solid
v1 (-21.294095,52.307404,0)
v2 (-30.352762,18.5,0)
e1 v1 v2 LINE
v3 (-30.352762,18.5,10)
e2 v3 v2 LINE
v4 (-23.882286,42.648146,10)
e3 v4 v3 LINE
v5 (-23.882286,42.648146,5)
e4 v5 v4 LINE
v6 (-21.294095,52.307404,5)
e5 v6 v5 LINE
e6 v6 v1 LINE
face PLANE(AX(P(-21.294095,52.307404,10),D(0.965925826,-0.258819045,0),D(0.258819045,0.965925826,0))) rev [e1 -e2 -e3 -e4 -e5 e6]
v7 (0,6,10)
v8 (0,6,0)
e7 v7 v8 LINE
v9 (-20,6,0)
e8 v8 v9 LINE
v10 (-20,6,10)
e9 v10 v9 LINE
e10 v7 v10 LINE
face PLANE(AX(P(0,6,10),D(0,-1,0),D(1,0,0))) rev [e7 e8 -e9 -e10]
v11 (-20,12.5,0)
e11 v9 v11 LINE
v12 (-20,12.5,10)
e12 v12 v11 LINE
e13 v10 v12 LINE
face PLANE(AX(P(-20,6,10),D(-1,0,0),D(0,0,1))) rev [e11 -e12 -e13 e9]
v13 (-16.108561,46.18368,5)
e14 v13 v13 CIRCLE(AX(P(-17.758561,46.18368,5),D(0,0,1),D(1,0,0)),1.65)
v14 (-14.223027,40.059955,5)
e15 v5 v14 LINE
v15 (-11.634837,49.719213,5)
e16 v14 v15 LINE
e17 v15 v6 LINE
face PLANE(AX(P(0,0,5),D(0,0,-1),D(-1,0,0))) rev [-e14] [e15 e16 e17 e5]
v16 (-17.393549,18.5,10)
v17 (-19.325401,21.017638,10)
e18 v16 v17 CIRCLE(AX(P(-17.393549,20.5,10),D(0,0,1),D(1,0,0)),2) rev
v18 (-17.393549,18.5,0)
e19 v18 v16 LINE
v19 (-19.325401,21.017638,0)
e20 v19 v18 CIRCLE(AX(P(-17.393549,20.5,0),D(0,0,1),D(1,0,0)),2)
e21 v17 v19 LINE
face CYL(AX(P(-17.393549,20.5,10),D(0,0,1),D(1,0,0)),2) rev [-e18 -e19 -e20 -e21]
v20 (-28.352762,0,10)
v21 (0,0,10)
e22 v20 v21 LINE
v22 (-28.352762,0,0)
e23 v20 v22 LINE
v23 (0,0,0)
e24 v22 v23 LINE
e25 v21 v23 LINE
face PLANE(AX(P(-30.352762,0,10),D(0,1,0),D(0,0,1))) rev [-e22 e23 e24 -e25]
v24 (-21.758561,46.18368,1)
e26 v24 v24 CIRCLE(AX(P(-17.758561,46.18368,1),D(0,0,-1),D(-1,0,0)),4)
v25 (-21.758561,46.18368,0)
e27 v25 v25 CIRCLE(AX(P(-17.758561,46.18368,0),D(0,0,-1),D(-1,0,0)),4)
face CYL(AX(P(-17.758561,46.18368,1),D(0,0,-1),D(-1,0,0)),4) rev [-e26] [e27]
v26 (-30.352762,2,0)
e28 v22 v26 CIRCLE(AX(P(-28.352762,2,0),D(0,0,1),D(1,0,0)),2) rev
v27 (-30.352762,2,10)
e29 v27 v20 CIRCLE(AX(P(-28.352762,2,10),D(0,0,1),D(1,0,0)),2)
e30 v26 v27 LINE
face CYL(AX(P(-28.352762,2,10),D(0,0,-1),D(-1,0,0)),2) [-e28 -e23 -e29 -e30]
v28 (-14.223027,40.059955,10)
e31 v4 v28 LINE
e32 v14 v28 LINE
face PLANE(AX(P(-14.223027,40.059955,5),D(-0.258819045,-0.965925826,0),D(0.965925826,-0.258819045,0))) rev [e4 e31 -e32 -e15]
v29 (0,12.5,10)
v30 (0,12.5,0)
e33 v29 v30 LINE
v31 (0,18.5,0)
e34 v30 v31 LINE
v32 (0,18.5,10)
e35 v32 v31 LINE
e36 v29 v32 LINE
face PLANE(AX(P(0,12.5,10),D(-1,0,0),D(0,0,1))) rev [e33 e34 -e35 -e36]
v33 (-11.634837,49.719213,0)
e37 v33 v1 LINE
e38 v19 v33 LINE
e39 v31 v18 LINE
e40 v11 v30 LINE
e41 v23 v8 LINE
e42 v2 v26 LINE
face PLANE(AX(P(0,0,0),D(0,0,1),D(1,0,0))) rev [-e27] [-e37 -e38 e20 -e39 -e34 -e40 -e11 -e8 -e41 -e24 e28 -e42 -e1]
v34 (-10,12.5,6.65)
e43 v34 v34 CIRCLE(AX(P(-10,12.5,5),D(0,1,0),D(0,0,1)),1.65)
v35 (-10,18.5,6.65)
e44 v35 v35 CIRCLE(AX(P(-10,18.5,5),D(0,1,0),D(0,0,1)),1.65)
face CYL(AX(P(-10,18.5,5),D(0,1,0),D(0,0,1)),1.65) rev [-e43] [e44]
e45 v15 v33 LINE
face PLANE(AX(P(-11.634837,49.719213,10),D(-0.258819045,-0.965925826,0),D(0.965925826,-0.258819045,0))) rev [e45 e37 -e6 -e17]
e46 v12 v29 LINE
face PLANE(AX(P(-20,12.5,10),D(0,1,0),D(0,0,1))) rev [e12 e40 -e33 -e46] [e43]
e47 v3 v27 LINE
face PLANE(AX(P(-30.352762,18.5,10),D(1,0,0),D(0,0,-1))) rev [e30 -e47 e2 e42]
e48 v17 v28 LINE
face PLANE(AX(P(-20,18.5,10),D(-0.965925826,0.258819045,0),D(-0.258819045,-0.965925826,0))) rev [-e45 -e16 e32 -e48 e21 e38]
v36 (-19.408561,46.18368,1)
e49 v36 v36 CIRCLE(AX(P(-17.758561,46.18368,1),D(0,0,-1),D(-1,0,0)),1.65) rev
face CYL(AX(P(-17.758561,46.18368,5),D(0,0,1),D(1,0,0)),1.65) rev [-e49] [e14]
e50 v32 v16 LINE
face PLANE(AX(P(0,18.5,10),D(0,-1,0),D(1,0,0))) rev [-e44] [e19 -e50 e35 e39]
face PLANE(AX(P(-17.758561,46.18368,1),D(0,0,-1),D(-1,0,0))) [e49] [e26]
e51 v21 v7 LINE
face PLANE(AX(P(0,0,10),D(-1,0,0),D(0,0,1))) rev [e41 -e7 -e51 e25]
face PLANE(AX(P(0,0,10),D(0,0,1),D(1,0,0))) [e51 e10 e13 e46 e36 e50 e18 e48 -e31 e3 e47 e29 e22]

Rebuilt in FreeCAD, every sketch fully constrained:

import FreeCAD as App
import Part
import Sketcher

V = App.Vector
Q = App.Units.Quantity


def edges_at(feature, points):
    """Names of the edges that pass closest to the given points."""
    edges = feature.Shape.Edges
    near = lambda p: min(range(len(edges)), key=lambda i: edges[i].distToShape(Part.Vertex(*p))[0])
    return sorted({f"Edge{near(p) + 1}" for p in points})


def add_polygon(sketch, points):
    """Adds a closed chain of lines whose ends are joined by coincident constraints."""
    first, n = sketch.GeometryCount, len(points)
    for a, b in zip(points, points[1:] + points[:1]):
        sketch.addGeometry(Part.LineSegment(App.Vector(*a, 0), App.Vector(*b, 0)), False)
    for i in range(n):
        sketch.addConstraint(Sketcher.Constraint("Coincident", first + i, 2, first + (i + 1) % n, 1))

doc = App.newDocument("Part")
params = doc.addObject("Spreadsheet::Sheet", "Params")
for row, (alias, value) in enumerate([
    ("sketch1_width", "20 mm"),
    ("sketch1_height", "6 mm"),
    ("sketch1_length", "10 mm"),
    ("sketch1_length2", "35 mm"),
    ("sketch1_height2", "6.5 mm"),
    ("pad1_length", "10 mm"),
    ("sketch2_length", "10 mm"),
    ("pocket1_length", "5 mm"),
    ("fillet_radius", "2 mm"),
    ("sketch3_diameter", "3.3 mm"),
    ("hole_diameter", "3.3 mm"),
    ("hole_depth", "6 mm"),
    ("sketch4_diameter", "3.3 mm"),
    ("hole2_diameter", "3.3 mm"),
    ("fillet2_radius", "2 mm"),
    ("sketch5_diameter", "8 mm"),
    ("pocket2_length", "1 mm"),
], start=1):
    params.set(f"A{row}", alias)
    params.set(f"B{row}", "=" + value)
    params.setAlias(f"B{row}", alias)

body = doc.addObject("PartDesign::Body", "Body")

# Sketch on XY plane
sketch1 = body.newObject("Sketcher::SketchObject", "Sketch")
sketch1.AttachmentSupport = (doc.getObject("XY_Plane"), [""])
sketch1.MapMode = "FlatFace"
add_polygon(sketch1, [(0, 0), (0, 6), (-20, 6), (-20, 12), (0, 12), (0, 18), (-20, 18), (-12, 50), (-21, 52), (-30, 18), (-30, 0)])  # lines 0-10
sketch1.addConstraint(Sketcher.Constraint("Vertical", 0))
sketch1.addConstraint(Sketcher.Constraint("Horizontal", 1))
sketch1.addConstraint(Sketcher.Constraint("Vertical", 2))
sketch1.addConstraint(Sketcher.Constraint("Horizontal", 3))
sketch1.addConstraint(Sketcher.Constraint("Vertical", 4))
sketch1.addConstraint(Sketcher.Constraint("Horizontal", 5))
sketch1.addConstraint(Sketcher.Constraint("Vertical", 9))
sketch1.addConstraint(Sketcher.Constraint("Horizontal", 10))
sketch1.addConstraint(Sketcher.Constraint("Coincident", 10, 2, -1, 1))
sketch1.addConstraint(Sketcher.Constraint("PointOnObject", 3, 2, -2))
sketch1.addConstraint(Sketcher.Constraint("Perpendicular", 6, 7))
sketch1.addConstraint(Sketcher.Constraint("Perpendicular", 7, 8))
sketch1.addConstraint(Sketcher.Constraint("Horizontal", 5, 2, 8, 2))
sketch1.addConstraint(Sketcher.Constraint("Vertical", 2, 2, 5, 2))
sketch1.addConstraint(Sketcher.Constraint("Equal", 0, 4))
sketch1.addConstraint(Sketcher.Constraint("DistanceX", 1, 2, 1, 1, 20.0))
sketch1.addConstraint(Sketcher.Constraint("DistanceY", 0, 1, 0, 2, 6.0))
sketch1.addConstraint(Sketcher.Constraint("Angle", 6, Q("75 deg")))
sketch1.addConstraint(Sketcher.Constraint("Distance", 7, 10.0))
sketch1.addConstraint(Sketcher.Constraint("Distance", 8, 35.0))
sketch1.addConstraint(Sketcher.Constraint("DistanceY", 2, 1, 2, 2, 6.5))
sketch1.setExpression("Constraints[26]", "Params.sketch1_width")
sketch1.setExpression("Constraints[27]", "Params.sketch1_height")
sketch1.setExpression("Constraints[29]", "Params.sketch1_length")
sketch1.setExpression("Constraints[30]", "Params.sketch1_length2")
sketch1.setExpression("Constraints[31]", "Params.sketch1_height2")
pad1 = body.newObject("PartDesign::Pad", "Pad")
pad1.Profile = sketch1
pad1.setExpression("Length", "Params.pad1_length")

# Sketch on XY plane
sketch2 = body.newObject("Sketcher::SketchObject", "Sketch001")
sketch2.AttachmentSupport = (doc.getObject("XY_Plane"), [""])
sketch2.MapMode = "FlatFace"
sketch2.AttachmentOffset = App.Placement(V(0, 0, 10), App.Rotation())
add_polygon(sketch2, [(-12, 50), (-21, 52), (-24, 43), (-14, 40)])  # lines 0-3
sketch2.addConstraint(Sketcher.Constraint("Perpendicular", 0, 1))
sketch2.addConstraint(Sketcher.Constraint("Perpendicular", 1, 2))
sketch2.addConstraint(Sketcher.Constraint("Perpendicular", 2, 3))
sketch2.addConstraint(Sketcher.Constraint("Equal", 0, 1))
sketch2.addConstraint(Sketcher.Constraint("Angle", 0, Q("165 deg")))
sketch2.addConstraint(Sketcher.Constraint("Distance", 0, 10.0))
sketch2.addConstraint(Sketcher.Constraint("DistanceX", 0, 2, -1, 1, 21.294095))
sketch2.addConstraint(Sketcher.Constraint("DistanceY", -1, 1, 0, 2, 52.307404))
sketch2.setExpression("Constraints[9]", "Params.sketch2_length")
pocket1 = body.newObject("PartDesign::Pocket", "Pocket")
pocket1.Profile = sketch2
pocket1.setExpression("Length", "Params.pocket1_length")
doc.recompute()

fillet = body.newObject("PartDesign::Fillet", "Fillet")
fillet.Base = (pocket1, edges_at(pocket1, [(-20, 18.5, 5)]))
fillet.setExpression("Radius", "Params.fillet_radius")

# Sketch on XZ plane
sketch3 = body.newObject("Sketcher::SketchObject", "Sketch002")
sketch3.AttachmentSupport = (doc.getObject("XZ_Plane"), [""])
sketch3.MapMode = "FlatFace"
sketch3.AttachmentOffset = App.Placement(V(0, 0, -18.5), App.Rotation())
sketch3.addGeometry(Part.Circle(V(-10, 5, 0), V(0, 0, 1), 1.6), False)
sketch3.addConstraint(Sketcher.Constraint("Diameter", 0, 3.3))
sketch3.addConstraint(Sketcher.Constraint("DistanceX", 0, 3, -1, 1, 10.0))
sketch3.addConstraint(Sketcher.Constraint("DistanceY", -1, 1, 0, 3, 5.0))
sketch3.setExpression("Constraints[0]", "Params.sketch3_diameter")
doc.recompute()
hole = body.newObject("PartDesign::Hole", "Hole")
hole.Profile = sketch3
hole.ThreadType = "None"
hole.setExpression("Diameter", "Params.hole_diameter")
hole.DepthType = "Dimension"
hole.setExpression("Depth", "Params.hole_depth")
hole.DrillPoint = "Flat"
hole.Reversed = True

# Sketch on XY plane
sketch4 = body.newObject("Sketcher::SketchObject", "Sketch003")
sketch4.AttachmentSupport = (doc.getObject("XY_Plane"), [""])
sketch4.MapMode = "FlatFace"
sketch4.AttachmentOffset = App.Placement(V(0, 0, 5), App.Rotation())
sketch4.addGeometry(Part.Circle(V(-17.8, 46.2, 0), V(0, 0, 1), 1.6), False)
sketch4.addConstraint(Sketcher.Constraint("Diameter", 0, 3.3))
sketch4.addConstraint(Sketcher.Constraint("DistanceX", 0, 3, -1, 1, 17.758561))
sketch4.addConstraint(Sketcher.Constraint("DistanceY", -1, 1, 0, 3, 46.18368))
sketch4.setExpression("Constraints[0]", "Params.sketch4_diameter")
doc.recompute()
hole2 = body.newObject("PartDesign::Hole", "Hole001")
hole2.Profile = sketch4
hole2.ThreadType = "None"
hole2.setExpression("Diameter", "Params.hole2_diameter")
hole2.DepthType = "ThroughAll"
doc.recompute()

fillet2 = body.newObject("PartDesign::Fillet", "Fillet001")
fillet2.Base = (hole2, edges_at(hole2, [(-30.353, 0, 5)]))
fillet2.setExpression("Radius", "Params.fillet2_radius")

# Sketch on XY plane
sketch5 = body.newObject("Sketcher::SketchObject", "Sketch004")
sketch5.AttachmentSupport = (doc.getObject("XY_Plane"), [""])
sketch5.MapMode = "FlatFace"
sketch5.addGeometry(Part.Circle(V(-17.8, 46.2, 0), V(0, 0, 1), 4), False)
sketch5.addConstraint(Sketcher.Constraint("Diameter", 0, 8.0))
sketch5.addConstraint(Sketcher.Constraint("DistanceX", 0, 3, -1, 1, 17.758561))
sketch5.addConstraint(Sketcher.Constraint("DistanceY", -1, 1, 0, 3, 46.18368))
sketch5.setExpression("Constraints[0]", "Params.sketch5_diameter")
pocket2 = body.newObject("PartDesign::Pocket", "Pocket001")
pocket2.Profile = sketch5
pocket2.setExpression("Length", "Params.pocket2_length")
pocket2.Reversed = True

doc.recompute()
